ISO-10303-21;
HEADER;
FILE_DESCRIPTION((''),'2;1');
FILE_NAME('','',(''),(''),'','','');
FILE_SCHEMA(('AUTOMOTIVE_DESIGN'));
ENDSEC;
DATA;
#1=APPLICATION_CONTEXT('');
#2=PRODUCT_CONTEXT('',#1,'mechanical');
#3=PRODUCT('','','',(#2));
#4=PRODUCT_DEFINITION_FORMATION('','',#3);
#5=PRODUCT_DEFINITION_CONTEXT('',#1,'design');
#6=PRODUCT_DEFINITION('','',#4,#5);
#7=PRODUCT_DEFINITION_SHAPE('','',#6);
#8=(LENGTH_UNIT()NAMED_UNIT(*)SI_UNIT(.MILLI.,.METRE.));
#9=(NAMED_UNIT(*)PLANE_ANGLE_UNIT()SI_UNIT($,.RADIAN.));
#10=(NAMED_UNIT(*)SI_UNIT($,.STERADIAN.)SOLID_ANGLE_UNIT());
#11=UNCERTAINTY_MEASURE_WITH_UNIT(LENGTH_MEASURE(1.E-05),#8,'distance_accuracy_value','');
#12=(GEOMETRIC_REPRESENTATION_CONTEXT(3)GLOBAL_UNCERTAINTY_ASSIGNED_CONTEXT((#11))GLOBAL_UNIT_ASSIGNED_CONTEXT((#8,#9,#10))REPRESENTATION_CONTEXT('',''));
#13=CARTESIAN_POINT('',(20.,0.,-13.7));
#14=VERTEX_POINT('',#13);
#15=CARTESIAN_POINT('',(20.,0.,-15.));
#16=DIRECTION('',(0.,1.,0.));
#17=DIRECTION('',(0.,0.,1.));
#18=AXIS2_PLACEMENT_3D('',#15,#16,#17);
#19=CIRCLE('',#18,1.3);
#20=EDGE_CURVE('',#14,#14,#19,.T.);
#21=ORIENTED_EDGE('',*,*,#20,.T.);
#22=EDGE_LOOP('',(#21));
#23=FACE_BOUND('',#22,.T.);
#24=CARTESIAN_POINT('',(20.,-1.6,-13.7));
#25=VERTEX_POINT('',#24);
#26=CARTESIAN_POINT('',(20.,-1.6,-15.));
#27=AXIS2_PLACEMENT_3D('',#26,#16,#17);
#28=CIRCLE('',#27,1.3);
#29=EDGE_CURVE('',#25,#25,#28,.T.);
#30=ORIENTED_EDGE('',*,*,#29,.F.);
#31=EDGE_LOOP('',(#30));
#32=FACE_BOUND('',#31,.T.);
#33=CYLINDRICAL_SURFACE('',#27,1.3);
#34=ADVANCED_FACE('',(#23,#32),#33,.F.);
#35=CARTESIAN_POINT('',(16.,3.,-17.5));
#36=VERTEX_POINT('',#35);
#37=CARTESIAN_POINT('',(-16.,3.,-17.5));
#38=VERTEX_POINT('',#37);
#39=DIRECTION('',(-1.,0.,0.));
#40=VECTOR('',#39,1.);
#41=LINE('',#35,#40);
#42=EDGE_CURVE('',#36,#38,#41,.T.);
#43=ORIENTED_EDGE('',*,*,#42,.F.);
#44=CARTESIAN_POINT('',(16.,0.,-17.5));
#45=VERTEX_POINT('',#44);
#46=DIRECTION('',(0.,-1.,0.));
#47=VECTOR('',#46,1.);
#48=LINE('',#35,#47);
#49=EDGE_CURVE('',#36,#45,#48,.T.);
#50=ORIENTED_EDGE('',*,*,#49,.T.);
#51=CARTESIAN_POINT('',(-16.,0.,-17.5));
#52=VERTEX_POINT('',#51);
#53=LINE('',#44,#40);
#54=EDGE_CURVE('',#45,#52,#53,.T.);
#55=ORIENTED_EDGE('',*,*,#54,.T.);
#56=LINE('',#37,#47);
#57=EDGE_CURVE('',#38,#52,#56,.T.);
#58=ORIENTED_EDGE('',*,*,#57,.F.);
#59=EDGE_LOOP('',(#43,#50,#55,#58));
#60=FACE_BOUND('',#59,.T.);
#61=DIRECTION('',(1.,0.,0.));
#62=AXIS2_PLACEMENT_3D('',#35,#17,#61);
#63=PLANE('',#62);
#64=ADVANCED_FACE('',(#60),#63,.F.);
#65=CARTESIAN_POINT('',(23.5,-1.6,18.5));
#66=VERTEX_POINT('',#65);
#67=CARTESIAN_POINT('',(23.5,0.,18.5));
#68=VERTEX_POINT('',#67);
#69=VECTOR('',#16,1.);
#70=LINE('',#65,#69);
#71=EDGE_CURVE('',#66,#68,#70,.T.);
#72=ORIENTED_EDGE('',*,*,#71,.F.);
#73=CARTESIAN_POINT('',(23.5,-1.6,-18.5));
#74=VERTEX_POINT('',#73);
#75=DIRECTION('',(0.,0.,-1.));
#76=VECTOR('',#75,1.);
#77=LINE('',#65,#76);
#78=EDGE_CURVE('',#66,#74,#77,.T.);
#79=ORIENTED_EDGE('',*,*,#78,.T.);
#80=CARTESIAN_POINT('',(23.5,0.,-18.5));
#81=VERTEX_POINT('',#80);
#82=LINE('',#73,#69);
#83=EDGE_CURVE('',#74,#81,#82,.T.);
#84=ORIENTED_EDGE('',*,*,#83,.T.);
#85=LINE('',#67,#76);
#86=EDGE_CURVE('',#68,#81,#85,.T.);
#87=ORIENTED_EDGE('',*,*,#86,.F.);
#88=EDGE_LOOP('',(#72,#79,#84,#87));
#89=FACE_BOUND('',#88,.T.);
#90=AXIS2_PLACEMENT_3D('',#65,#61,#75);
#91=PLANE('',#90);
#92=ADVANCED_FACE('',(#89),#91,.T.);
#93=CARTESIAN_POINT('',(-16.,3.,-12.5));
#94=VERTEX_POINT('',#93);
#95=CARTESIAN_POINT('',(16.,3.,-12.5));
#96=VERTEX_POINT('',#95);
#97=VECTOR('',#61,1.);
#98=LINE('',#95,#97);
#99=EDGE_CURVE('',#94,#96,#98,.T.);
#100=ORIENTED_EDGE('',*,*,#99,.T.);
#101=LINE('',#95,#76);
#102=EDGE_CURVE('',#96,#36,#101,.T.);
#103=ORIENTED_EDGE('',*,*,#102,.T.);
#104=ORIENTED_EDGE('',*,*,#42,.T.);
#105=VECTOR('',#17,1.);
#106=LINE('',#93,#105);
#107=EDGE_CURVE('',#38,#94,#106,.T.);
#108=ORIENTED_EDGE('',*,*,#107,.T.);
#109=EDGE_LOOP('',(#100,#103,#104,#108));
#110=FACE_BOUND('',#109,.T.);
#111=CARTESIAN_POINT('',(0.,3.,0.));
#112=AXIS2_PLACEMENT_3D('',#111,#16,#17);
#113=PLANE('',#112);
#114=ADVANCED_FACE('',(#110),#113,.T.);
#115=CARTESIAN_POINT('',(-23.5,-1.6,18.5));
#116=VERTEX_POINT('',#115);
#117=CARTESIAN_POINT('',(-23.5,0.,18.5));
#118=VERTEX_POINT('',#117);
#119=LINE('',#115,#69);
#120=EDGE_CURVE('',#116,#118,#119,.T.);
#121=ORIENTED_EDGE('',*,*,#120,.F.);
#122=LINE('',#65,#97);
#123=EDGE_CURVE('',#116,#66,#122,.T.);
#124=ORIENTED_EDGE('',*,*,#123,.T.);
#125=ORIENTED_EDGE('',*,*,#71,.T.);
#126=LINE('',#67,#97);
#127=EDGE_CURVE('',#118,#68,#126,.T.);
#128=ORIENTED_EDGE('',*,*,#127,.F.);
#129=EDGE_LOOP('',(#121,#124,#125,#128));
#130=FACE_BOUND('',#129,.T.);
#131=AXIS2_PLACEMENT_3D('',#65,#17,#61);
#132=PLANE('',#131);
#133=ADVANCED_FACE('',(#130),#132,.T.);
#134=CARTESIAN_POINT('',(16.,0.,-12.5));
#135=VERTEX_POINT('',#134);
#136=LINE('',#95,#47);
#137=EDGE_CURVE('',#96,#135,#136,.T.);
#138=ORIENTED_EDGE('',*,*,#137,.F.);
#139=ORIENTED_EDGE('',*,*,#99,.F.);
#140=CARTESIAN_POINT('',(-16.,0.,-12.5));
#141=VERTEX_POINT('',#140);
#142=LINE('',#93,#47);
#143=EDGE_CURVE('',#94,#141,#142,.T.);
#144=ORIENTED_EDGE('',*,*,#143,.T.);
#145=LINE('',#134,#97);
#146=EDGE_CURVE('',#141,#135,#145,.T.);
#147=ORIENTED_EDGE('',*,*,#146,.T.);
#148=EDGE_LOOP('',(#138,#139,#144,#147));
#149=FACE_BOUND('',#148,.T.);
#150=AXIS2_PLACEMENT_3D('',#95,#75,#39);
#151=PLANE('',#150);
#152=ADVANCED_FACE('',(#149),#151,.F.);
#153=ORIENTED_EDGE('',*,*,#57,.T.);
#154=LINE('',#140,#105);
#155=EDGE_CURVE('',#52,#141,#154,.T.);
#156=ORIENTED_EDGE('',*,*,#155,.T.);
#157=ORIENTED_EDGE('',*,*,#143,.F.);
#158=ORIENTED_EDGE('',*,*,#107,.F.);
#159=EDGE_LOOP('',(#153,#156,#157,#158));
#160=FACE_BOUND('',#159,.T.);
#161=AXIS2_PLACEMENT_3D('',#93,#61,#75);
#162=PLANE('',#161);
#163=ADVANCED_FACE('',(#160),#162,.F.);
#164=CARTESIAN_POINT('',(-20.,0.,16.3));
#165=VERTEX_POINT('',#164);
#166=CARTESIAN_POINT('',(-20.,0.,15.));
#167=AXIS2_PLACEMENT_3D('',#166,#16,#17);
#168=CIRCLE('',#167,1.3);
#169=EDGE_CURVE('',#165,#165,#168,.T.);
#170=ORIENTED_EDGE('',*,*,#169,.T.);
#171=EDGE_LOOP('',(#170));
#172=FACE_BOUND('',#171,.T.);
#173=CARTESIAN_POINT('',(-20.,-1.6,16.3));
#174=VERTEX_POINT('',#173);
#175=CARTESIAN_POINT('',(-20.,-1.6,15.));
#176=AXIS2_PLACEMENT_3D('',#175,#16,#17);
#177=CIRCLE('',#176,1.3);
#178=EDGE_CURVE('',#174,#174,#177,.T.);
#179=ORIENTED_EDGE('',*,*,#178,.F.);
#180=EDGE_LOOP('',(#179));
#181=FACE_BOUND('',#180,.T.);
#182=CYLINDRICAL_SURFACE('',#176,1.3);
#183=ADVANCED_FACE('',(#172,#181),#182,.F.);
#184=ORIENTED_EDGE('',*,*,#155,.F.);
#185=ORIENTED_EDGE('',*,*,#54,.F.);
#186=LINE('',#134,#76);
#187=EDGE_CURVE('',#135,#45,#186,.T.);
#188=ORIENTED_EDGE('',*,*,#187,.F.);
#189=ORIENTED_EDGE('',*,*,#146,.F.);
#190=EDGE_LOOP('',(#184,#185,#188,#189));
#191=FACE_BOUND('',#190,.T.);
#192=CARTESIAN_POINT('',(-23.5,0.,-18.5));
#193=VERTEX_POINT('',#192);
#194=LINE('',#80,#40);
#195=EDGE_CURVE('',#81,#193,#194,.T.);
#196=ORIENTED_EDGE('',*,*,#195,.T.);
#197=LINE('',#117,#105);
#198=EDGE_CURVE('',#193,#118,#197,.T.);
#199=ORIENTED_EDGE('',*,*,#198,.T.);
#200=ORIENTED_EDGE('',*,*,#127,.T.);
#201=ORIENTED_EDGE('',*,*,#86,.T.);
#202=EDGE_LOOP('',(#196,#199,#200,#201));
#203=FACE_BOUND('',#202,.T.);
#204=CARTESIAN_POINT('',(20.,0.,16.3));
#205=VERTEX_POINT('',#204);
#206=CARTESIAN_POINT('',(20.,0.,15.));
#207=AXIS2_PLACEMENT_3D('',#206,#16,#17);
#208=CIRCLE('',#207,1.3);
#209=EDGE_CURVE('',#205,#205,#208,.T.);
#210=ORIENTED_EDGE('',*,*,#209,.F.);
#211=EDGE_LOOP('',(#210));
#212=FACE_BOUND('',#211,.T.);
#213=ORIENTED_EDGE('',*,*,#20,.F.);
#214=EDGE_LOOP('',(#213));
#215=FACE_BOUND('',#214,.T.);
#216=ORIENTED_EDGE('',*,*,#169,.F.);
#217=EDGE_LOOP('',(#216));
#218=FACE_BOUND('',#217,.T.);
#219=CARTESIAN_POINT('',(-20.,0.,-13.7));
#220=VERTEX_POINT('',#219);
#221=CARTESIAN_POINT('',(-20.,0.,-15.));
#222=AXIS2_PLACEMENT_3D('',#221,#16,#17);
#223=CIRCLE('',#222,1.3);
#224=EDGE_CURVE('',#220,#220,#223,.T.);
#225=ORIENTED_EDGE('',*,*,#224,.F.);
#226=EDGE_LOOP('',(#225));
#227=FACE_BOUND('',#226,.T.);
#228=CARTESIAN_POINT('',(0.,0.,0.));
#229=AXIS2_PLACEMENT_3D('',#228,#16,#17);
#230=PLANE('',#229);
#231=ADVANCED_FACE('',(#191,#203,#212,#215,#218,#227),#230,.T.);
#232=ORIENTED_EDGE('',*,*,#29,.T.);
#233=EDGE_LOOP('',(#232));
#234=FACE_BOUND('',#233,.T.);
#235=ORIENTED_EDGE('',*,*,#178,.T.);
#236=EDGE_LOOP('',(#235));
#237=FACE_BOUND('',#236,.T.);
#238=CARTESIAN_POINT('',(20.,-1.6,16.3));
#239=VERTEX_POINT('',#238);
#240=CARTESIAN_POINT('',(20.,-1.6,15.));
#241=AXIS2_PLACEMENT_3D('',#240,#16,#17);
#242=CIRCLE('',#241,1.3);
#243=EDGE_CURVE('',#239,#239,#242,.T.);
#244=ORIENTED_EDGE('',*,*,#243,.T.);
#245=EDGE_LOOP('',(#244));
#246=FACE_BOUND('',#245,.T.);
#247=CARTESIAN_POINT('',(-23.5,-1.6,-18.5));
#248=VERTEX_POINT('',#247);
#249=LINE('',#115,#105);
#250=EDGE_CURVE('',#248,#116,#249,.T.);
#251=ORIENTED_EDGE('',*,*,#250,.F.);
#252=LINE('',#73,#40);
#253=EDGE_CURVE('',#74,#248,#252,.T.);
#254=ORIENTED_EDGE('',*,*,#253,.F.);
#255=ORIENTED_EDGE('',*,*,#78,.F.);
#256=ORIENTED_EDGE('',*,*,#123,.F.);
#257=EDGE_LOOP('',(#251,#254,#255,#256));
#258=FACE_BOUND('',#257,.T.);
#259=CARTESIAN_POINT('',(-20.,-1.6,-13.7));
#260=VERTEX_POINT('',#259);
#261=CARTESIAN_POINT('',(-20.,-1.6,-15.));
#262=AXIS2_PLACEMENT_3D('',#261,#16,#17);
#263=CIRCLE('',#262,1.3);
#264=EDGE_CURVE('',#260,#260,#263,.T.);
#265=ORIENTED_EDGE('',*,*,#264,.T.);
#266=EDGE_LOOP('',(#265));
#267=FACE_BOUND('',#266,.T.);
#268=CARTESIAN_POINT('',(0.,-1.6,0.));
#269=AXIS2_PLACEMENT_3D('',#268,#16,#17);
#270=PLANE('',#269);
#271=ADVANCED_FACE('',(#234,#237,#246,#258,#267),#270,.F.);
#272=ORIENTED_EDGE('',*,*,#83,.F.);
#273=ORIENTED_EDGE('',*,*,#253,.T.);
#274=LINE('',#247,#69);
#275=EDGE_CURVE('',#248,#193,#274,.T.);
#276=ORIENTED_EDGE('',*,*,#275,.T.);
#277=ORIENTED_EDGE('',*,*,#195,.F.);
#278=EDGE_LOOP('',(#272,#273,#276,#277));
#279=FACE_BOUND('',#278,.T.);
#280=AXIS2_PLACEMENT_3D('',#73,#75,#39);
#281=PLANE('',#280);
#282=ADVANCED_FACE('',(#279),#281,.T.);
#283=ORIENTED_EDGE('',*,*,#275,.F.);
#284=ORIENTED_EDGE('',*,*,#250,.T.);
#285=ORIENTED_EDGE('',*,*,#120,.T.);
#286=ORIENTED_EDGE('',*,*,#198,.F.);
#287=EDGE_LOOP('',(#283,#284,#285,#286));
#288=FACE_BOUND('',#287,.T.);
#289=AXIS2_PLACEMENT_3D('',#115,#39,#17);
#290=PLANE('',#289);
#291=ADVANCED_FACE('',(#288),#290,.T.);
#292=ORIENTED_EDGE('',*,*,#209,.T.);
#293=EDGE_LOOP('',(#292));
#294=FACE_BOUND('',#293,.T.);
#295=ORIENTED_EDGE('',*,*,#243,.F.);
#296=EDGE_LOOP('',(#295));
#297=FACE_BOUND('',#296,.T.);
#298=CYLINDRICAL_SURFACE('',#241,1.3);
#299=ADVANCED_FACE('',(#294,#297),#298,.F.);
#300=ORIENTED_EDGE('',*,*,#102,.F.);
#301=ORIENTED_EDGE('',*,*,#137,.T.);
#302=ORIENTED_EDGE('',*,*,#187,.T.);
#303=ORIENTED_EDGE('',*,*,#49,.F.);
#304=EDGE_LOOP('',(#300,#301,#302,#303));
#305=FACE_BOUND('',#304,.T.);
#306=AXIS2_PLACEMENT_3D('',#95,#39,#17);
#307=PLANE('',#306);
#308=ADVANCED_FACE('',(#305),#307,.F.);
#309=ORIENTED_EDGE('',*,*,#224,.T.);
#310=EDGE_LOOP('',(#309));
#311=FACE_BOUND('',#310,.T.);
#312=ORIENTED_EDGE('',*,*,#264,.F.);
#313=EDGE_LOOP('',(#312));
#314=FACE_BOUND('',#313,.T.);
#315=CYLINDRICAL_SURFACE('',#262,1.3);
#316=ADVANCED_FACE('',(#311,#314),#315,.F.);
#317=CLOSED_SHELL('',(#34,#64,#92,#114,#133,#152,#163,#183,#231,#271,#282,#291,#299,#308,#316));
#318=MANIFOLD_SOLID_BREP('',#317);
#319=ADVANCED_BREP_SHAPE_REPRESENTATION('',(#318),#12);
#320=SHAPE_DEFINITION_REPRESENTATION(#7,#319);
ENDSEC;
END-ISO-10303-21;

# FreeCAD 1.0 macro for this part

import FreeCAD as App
import Part
import Sketcher

V = App.Vector
Q = App.Units.Quantity

doc = App.newDocument("Part")
body = doc.addObject("PartDesign::Body", "Body")

# Sketch on XZ plane
sketch1 = body.newObject("Sketcher::SketchObject", "Sketch")
sketch1.AttachmentSupport = (doc.getObject("XZ_Plane"), [""])
sketch1.MapMode = "FlatFace"
sketch1.addGeometry([
    Part.LineSegment(V(-24, -18, 0), V(-24, 18, 0)),
    Part.LineSegment(V(-24, 18, 0), V(24, 18, 0)),
    Part.LineSegment(V(24, 18, 0), V(24, -18, 0)),
    Part.LineSegment(V(24, -18, 0), V(-24, -18, 0)),
], False)
sketch1.addConstraint([
    Sketcher.Constraint("Coincident", 0, 2, 1, 1),
    Sketcher.Constraint("Coincident", 1, 2, 2, 1),
    Sketcher.Constraint("Coincident", 2, 2, 3, 1),
    Sketcher.Constraint("Coincident", 3, 2, 0, 1),
    Sketcher.Constraint("Vertical", 0),
    Sketcher.Constraint("Horizontal", 1),
    Sketcher.Constraint("Vertical", 2),
    Sketcher.Constraint("Horizontal", 3),
    Sketcher.Constraint("Symmetric", 0, 2, 2, 2, -1, 1),
    Sketcher.Constraint("DistanceX", 1, 1, 1, 2, Q("47 mm")),
    Sketcher.Constraint("DistanceY", 0, 1, 0, 2, Q("37 mm")),
])
pad1 = body.newObject("PartDesign::Pad", "Pad")
pad1.Profile = sketch1
pad1.Length = 1.6

# Sketch on XZ plane
sketch2 = body.newObject("Sketcher::SketchObject", "Sketch001")
sketch2.AttachmentSupport = (doc.getObject("XZ_Plane"), [""])
sketch2.MapMode = "FlatFace"
sketch2.addGeometry([
    Part.Circle(V(-20, -15, 0), V(0, 0, 1), 1.3),
    Part.Circle(V(-20, 15, 0), V(0, 0, 1), 1.3),
    Part.Circle(V(20, 15, 0), V(0, 0, 1), 1.3),
    Part.Circle(V(20, -15, 0), V(0, 0, 1), 1.3),
], False)
sketch2.addConstraint([
    Sketcher.Constraint("Equal", 0, 1),
    Sketcher.Constraint("Equal", 1, 2),
    Sketcher.Constraint("Equal", 2, 3),
    Sketcher.Constraint("Symmetric", 0, 3, 2, 3, -1, 1),
    Sketcher.Constraint("Symmetric", 1, 3, 3, 3, -1, 1),
    Sketcher.Constraint("Symmetric", 1, 3, 2, 3, -2),
    Sketcher.Constraint("Diameter", 0, Q("2.6 mm")),
    Sketcher.Constraint("DistanceX", 0, 3, -1, 1, Q("20 mm")),
    Sketcher.Constraint("DistanceY", 0, 3, -1, 1, Q("15 mm")),
])
pocket1 = body.newObject("PartDesign::Pocket", "Pocket")
pocket1.Profile = sketch2
pocket1.Length = 1.6
pocket1.Reversed = True

# Sketch on XZ plane
sketch3 = body.newObject("Sketcher::SketchObject", "Sketch002")
sketch3.AttachmentSupport = (doc.getObject("XZ_Plane"), [""])
sketch3.MapMode = "FlatFace"
sketch3.addGeometry([
    Part.LineSegment(V(-16, -18, 0), V(-16, -12, 0)),
    Part.LineSegment(V(-16, -12, 0), V(16, -12, 0)),
    Part.LineSegment(V(16, -12, 0), V(16, -18, 0)),
    Part.LineSegment(V(16, -18, 0), V(-16, -18, 0)),
], False)
sketch3.addConstraint([
    Sketcher.Constraint("Coincident", 0, 2, 1, 1),
    Sketcher.Constraint("Coincident", 1, 2, 2, 1),
    Sketcher.Constraint("Coincident", 2, 2, 3, 1),
    Sketcher.Constraint("Coincident", 3, 2, 0, 1),
    Sketcher.Constraint("Vertical", 0),
    Sketcher.Constraint("Horizontal", 1),
    Sketcher.Constraint("Vertical", 2),
    Sketcher.Constraint("Horizontal", 3),
    Sketcher.Constraint("DistanceX", 1, 1, 1, 2, Q("32 mm")),
    Sketcher.Constraint("DistanceY", 0, 1, 0, 2, Q("5 mm")),
    Sketcher.Constraint("DistanceX", 0, 2, -1, 1, Q("16 mm")),
    Sketcher.Constraint("DistanceY", 0, 2, -1, 1, Q("12.5 mm")),
])
pad2 = body.newObject("PartDesign::Pad", "Pad001")
pad2.Profile = sketch3
pad2.Length = 3
pad2.Reversed = True

doc.recompute()
